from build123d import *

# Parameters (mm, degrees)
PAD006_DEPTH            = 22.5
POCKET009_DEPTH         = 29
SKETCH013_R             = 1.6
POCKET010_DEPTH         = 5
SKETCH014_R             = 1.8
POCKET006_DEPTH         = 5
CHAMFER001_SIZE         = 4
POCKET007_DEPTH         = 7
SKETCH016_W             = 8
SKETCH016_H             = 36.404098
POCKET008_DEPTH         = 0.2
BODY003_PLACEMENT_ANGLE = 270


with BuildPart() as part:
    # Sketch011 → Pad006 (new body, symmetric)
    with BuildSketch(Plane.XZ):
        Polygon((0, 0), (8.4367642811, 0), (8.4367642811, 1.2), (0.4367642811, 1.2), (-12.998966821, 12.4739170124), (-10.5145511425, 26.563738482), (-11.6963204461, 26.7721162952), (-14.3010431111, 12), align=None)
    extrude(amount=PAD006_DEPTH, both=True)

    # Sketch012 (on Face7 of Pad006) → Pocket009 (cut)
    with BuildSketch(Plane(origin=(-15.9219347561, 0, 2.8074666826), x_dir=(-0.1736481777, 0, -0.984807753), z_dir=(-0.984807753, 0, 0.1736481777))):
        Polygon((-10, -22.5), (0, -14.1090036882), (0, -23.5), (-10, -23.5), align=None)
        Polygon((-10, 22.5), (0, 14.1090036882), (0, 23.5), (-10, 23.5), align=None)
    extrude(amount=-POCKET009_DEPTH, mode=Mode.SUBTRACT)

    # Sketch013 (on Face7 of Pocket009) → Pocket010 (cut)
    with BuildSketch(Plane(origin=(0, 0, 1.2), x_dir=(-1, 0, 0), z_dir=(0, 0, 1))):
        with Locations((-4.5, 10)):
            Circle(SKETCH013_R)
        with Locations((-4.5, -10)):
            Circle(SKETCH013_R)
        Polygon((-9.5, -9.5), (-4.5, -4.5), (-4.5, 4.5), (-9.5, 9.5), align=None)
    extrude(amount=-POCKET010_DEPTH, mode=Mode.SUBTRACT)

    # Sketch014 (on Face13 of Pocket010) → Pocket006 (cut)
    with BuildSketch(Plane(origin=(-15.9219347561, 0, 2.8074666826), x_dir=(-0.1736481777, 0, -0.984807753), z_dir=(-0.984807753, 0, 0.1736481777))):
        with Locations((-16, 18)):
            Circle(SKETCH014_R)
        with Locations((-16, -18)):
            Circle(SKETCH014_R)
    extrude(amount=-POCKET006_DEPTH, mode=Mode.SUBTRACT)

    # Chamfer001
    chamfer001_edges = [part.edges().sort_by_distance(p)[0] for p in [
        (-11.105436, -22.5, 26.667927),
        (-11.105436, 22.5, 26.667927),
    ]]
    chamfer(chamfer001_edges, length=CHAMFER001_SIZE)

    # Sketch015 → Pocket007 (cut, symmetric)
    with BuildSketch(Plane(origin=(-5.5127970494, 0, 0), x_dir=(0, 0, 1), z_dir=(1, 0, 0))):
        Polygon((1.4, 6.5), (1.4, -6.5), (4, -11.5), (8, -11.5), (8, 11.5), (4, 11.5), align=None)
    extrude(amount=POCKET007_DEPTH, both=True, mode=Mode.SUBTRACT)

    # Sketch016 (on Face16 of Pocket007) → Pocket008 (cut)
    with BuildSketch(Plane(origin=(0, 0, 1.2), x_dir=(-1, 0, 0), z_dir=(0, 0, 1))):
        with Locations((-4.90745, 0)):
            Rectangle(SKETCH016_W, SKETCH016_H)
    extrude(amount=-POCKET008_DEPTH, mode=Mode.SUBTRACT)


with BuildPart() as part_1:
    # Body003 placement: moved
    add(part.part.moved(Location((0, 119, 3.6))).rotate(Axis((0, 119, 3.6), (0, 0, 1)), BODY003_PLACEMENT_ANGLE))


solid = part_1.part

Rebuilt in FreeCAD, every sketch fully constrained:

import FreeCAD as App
import Part
import Sketcher
Q = App.Units.Quantity


def edges_at(feature, points):
    """Names of the edges that pass closest to the given points."""
    edges = feature.Shape.Edges
    near = lambda p: min(range(len(edges)), key=lambda i: edges[i].distToShape(Part.Vertex(*p))[0])
    return sorted({f"Edge{near(p) + 1}" for p in points})

doc = App.newDocument("Part")
body = doc.addObject("PartDesign::Body", "Body")

# Sketch on XZ plane
sketch1 = body.newObject("Sketcher::SketchObject", "Sketch")
sketch1.AttachmentSupport = (doc.getObject("XZ_Plane"), [""])
sketch1.MapMode = "FlatFace"
sketch1.addGeometry(Part.LineSegment(App.Vector(0, 0, 0), App.Vector(8.4, 0, 0)), False)
sketch1.addGeometry(Part.LineSegment(App.Vector(8.4, 0, 0), App.Vector(8.4, 1.2, 0)), False)
sketch1.addGeometry(Part.LineSegment(App.Vector(8.4, 1.2, 0), App.Vector(0.4, 1.2, 0)), False)
sketch1.addGeometry(Part.LineSegment(App.Vector(0.4, 1.2, 0), App.Vector(-13, 12.5, 0)), False)
sketch1.addGeometry(Part.LineSegment(App.Vector(-13, 12.5, 0), App.Vector(-10.5, 26.6, 0)), False)
sketch1.addGeometry(Part.LineSegment(App.Vector(-10.5, 26.6, 0), App.Vector(-11.7, 26.8, 0)), False)
sketch1.addGeometry(Part.LineSegment(App.Vector(-11.7, 26.8, 0), App.Vector(-14.3, 12, 0)), False)
sketch1.addGeometry(Part.LineSegment(App.Vector(-14.3, 12, 0), App.Vector(0, 0, 0)), False)
sketch1.addConstraint(Sketcher.Constraint("Coincident", 0, 2, 1, 1))
sketch1.addConstraint(Sketcher.Constraint("Coincident", 1, 2, 2, 1))
sketch1.addConstraint(Sketcher.Constraint("Coincident", 2, 2, 3, 1))
sketch1.addConstraint(Sketcher.Constraint("Coincident", 3, 2, 4, 1))
sketch1.addConstraint(Sketcher.Constraint("Coincident", 4, 2, 5, 1))
sketch1.addConstraint(Sketcher.Constraint("Coincident", 5, 2, 6, 1))
sketch1.addConstraint(Sketcher.Constraint("Coincident", 6, 2, 7, 1))
sketch1.addConstraint(Sketcher.Constraint("Coincident", 7, 2, 0, 1))
sketch1.addConstraint(Sketcher.Constraint("Horizontal", 0))
sketch1.addConstraint(Sketcher.Constraint("Vertical", 1))
sketch1.addConstraint(Sketcher.Constraint("Horizontal", 2))
sketch1.addConstraint(Sketcher.Constraint("Coincident", 7, 2, -1, 1))
sketch1.addConstraint(Sketcher.Constraint("Perpendicular", 4, 5))
sketch1.addConstraint(Sketcher.Constraint("Perpendicular", 5, 6))
sketch1.addConstraint(Sketcher.Constraint("Parallel", 3, 7))
sketch1.addConstraint(Sketcher.Constraint("DistanceX", 2, 2, 2, 1, Q("8 mm")))
sketch1.addConstraint(Sketcher.Constraint("Angle", 3, Q("140 deg")))
sketch1.addConstraint(Sketcher.Constraint("Angle", 4, Q("80 deg")))
sketch1.addConstraint(Sketcher.Constraint("Distance", 6, Q("15 mm")))
sketch1.addConstraint(Sketcher.Constraint("DistanceY", 1, 1, 1, 2, Q("1.2 mm")))
sketch1.addConstraint(Sketcher.Constraint("DistanceY", -1, 1, 6, 2, Q("12 mm")))
sketch1.addConstraint(Sketcher.Constraint("Distance", 5, Q("1.2 mm")))
sketch1.addConstraint(Sketcher.Constraint("Distance", 3, Q("17.539101 mm")))
pad1 = body.newObject("PartDesign::Pad", "Pad")
pad1.Profile = sketch1
pad1.Length = 45
pad1.Midplane = True

# Sketch on an angled plane
sketch2 = body.newObject("Sketcher::SketchObject", "Sketch001")
sketch2.Placement = App.Placement(App.Vector(-15.921935, 0, 2.807467), App.Rotation(App.Vector(-0.173648178, 0, -0.984807753), App.Vector(0, -1, 0), App.Vector(-0.984807753, 0, 0.173648178), "ZXY"))
sketch2.addGeometry(Part.LineSegment(App.Vector(0, -14.1, 0), App.Vector(-10, -22.5, 0)), False)
sketch2.addGeometry(Part.LineSegment(App.Vector(-10, -22.5, 0), App.Vector(-10, -23.5, 0)), False)
sketch2.addGeometry(Part.LineSegment(App.Vector(-10, -23.5, 0), App.Vector(0, -23.5, 0)), False)
sketch2.addGeometry(Part.LineSegment(App.Vector(0, -23.5, 0), App.Vector(0, -14.1, 0)), False)
sketch2.addGeometry(Part.LineSegment(App.Vector(-10, 22.5, 0), App.Vector(0, 14.1, 0)), False)
sketch2.addGeometry(Part.LineSegment(App.Vector(0, 14.1, 0), App.Vector(0, 23.5, 0)), False)
sketch2.addGeometry(Part.LineSegment(App.Vector(0, 23.5, 0), App.Vector(-10, 23.5, 0)), False)
sketch2.addGeometry(Part.LineSegment(App.Vector(-10, 23.5, 0), App.Vector(-10, 22.5, 0)), False)
sketch2.addConstraint(Sketcher.Constraint("Coincident", 0, 2, 1, 1))
sketch2.addConstraint(Sketcher.Constraint("Coincident", 1, 2, 2, 1))
sketch2.addConstraint(Sketcher.Constraint("Coincident", 2, 2, 3, 1))
sketch2.addConstraint(Sketcher.Constraint("Coincident", 3, 2, 0, 1))
sketch2.addConstraint(Sketcher.Constraint("Coincident", 4, 2, 5, 1))
sketch2.addConstraint(Sketcher.Constraint("Coincident", 5, 2, 6, 1))
sketch2.addConstraint(Sketcher.Constraint("Coincident", 6, 2, 7, 1))
sketch2.addConstraint(Sketcher.Constraint("Coincident", 7, 2, 4, 1))
sketch2.addConstraint(Sketcher.Constraint("Vertical", 1))
sketch2.addConstraint(Sketcher.Constraint("Horizontal", 2))
sketch2.addConstraint(Sketcher.Constraint("Vertical", 3))
sketch2.addConstraint(Sketcher.Constraint("Vertical", 5))
sketch2.addConstraint(Sketcher.Constraint("Horizontal", 6))
sketch2.addConstraint(Sketcher.Constraint("Vertical", 7))
sketch2.addConstraint(Sketcher.Constraint("Symmetric", 3, 2, 4, 2, -1, 1))
sketch2.addConstraint(Sketcher.Constraint("Symmetric", 2, 2, 5, 2, -1))
sketch2.addConstraint(Sketcher.Constraint("Symmetric", 0, 2, 7, 2, -1))
sketch2.addConstraint(Sketcher.Constraint("DistanceX", 2, 1, 2, 2, Q("10 mm")))
sketch2.addConstraint(Sketcher.Constraint("DistanceY", 1, 2, 1, 1, Q("1 mm")))
sketch2.addConstraint(Sketcher.Constraint("Angle", 0, Q("-140 deg")))
sketch2.addConstraint(Sketcher.Constraint("DistanceY", 2, 2, 5, 2, Q("47 mm")))
pocket1 = body.newObject("PartDesign::Pocket", "Pocket")
pocket1.Profile = sketch2
pocket1.Length = 29

# Sketch on XY plane
sketch3 = body.newObject("Sketcher::SketchObject", "Sketch002")
sketch3.AttachmentSupport = (doc.getObject("XY_Plane"), [""])
sketch3.MapMode = "FlatFace"
sketch3.AttachmentOffset = App.Placement(App.Vector(0, 0, 1.2), App.Rotation())
sketch3.addGeometry(Part.Circle(App.Vector(4.5, -10, 0), App.Vector(0, 0, 1), 1.6), False)
sketch3.addGeometry(Part.Circle(App.Vector(4.5, 10, 0), App.Vector(0, 0, 1), 1.6), False)
sketch3.addGeometry(Part.LineSegment(App.Vector(9.5, 9.5, 0), App.Vector(4.5, 4.5, 0)), False)
sketch3.addGeometry(Part.LineSegment(App.Vector(4.5, 4.5, 0), App.Vector(4.5, -4.5, 0)), False)
sketch3.addGeometry(Part.LineSegment(App.Vector(4.5, -4.5, 0), App.Vector(9.5, -9.5, 0)), False)
sketch3.addGeometry(Part.LineSegment(App.Vector(9.5, -9.5, 0), App.Vector(9.5, 9.5, 0)), False)
sketch3.addConstraint(Sketcher.Constraint("Coincident", 2, 2, 3, 1))
sketch3.addConstraint(Sketcher.Constraint("Coincident", 3, 2, 4, 1))
sketch3.addConstraint(Sketcher.Constraint("Coincident", 4, 2, 5, 1))
sketch3.addConstraint(Sketcher.Constraint("Coincident", 5, 2, 2, 1))
sketch3.addConstraint(Sketcher.Constraint("Vertical", 3))
sketch3.addConstraint(Sketcher.Constraint("Vertical", 5))
sketch3.addConstraint(Sketcher.Constraint("Equal", 0, 1))
sketch3.addConstraint(Sketcher.Constraint("Symmetric", 0, 3, 1, 3, -1))
sketch3.addConstraint(Sketcher.Constraint("Perpendicular", 2, 4))
sketch3.addConstraint(Sketcher.Constraint("Vertical", 1, 3, 2, 2))
sketch3.addConstraint(Sketcher.Constraint("Equal", 2, 4))
sketch3.addConstraint(Sketcher.Constraint("Diameter", 0, Q("3.2 mm")))
sketch3.addConstraint(Sketcher.Constraint("DistanceY", 3, 2, 3, 1, Q("9 mm")))
sketch3.addConstraint(Sketcher.Constraint("DistanceY", 5, 1, 5, 2, Q("19 mm")))
sketch3.addConstraint(Sketcher.Constraint("DistanceY", 0, 3, -1, 1, Q("10 mm")))
sketch3.addConstraint(Sketcher.Constraint("DistanceX", -1, 1, 0, 3, Q("4.5 mm")))
sketch3.addConstraint(Sketcher.Constraint("DistanceY", -1, 1, 2, 2, Q("4.5 mm")))
pocket2 = body.newObject("PartDesign::Pocket", "Pocket001")
pocket2.Profile = sketch3
pocket2.Length = 5

# Sketch on an angled plane
sketch4 = body.newObject("Sketcher::SketchObject", "Sketch003")
sketch4.Placement = App.Placement(App.Vector(-15.921935, 0, 2.807467), App.Rotation(App.Vector(-0.173648178, 0, -0.984807753), App.Vector(0, -1, 0), App.Vector(-0.984807753, 0, 0.173648178), "ZXY"))
sketch4.addGeometry(Part.Circle(App.Vector(-16, 18, 0), App.Vector(0, 0, 1), 1.8), False)
sketch4.addGeometry(Part.Circle(App.Vector(-16, -18, 0), App.Vector(0, 0, 1), 1.8), False)
sketch4.addConstraint(Sketcher.Constraint("Equal", 0, 1))
sketch4.addConstraint(Sketcher.Constraint("Symmetric", 0, 3, 1, 3, -1))
sketch4.addConstraint(Sketcher.Constraint("Diameter", 0, Q("3.6 mm")))
sketch4.addConstraint(Sketcher.Constraint("DistanceX", 0, 3, -1, 1, Q("16 mm")))
sketch4.addConstraint(Sketcher.Constraint("DistanceY", -1, 1, 0, 3, Q("18 mm")))
pocket3 = body.newObject("PartDesign::Pocket", "Pocket002")
pocket3.Profile = sketch4
pocket3.Length = 5
doc.recompute()

chamfer = body.newObject("PartDesign::Chamfer", "Chamfer")
chamfer.Base = (pocket3, edges_at(pocket3, [(-11.105, -22.5, 26.668), (-11.105, 22.5, 26.668)]))
chamfer.Size = 4

# Sketch on YZ plane
sketch5 = body.newObject("Sketcher::SketchObject", "Sketch004")
sketch5.AttachmentSupport = (doc.getObject("YZ_Plane"), [""])
sketch5.MapMode = "FlatFace"
sketch5.AttachmentOffset = App.Placement(App.Vector(0, 0, -5.512797), App.Rotation())
sketch5.addGeometry(Part.LineSegment(App.Vector(-6.5, 1.4, 0), App.Vector(6.5, 1.4, 0)), False)
sketch5.addGeometry(Part.LineSegment(App.Vector(6.5, 1.4, 0), App.Vector(11.5, 4, 0)), False)
sketch5.addGeometry(Part.LineSegment(App.Vector(11.5, 4, 0), App.Vector(11.5, 8, 0)), False)
sketch5.addGeometry(Part.LineSegment(App.Vector(11.5, 8, 0), App.Vector(-11.5, 8, 0)), False)
sketch5.addGeometry(Part.LineSegment(App.Vector(-11.5, 8, 0), App.Vector(-11.5, 4, 0)), False)
sketch5.addGeometry(Part.LineSegment(App.Vector(-11.5, 4, 0), App.Vector(-6.5, 1.4, 0)), False)
sketch5.addConstraint(Sketcher.Constraint("Coincident", 0, 2, 1, 1))
sketch5.addConstraint(Sketcher.Constraint("Coincident", 1, 2, 2, 1))
sketch5.addConstraint(Sketcher.Constraint("Coincident", 2, 2, 3, 1))
sketch5.addConstraint(Sketcher.Constraint("Coincident", 3, 2, 4, 1))
sketch5.addConstraint(Sketcher.Constraint("Coincident", 4, 2, 5, 1))
sketch5.addConstraint(Sketcher.Constraint("Coincident", 5, 2, 0, 1))
sketch5.addConstraint(Sketcher.Constraint("Horizontal", 0))
sketch5.addConstraint(Sketcher.Constraint("Vertical", 2))
sketch5.addConstraint(Sketcher.Constraint("Horizontal", 3))
sketch5.addConstraint(Sketcher.Constraint("Vertical", 4))
sketch5.addConstraint(Sketcher.Constraint("Symmetric", 1, 2, 4, 2, -2))
sketch5.addConstraint(Sketcher.Constraint("Equal", 1, 5))
sketch5.addConstraint(Sketcher.Constraint("DistanceX", 0, 1, 0, 2, Q("13 mm")))
sketch5.addConstraint(Sketcher.Constraint("DistanceX", 3, 2, 3, 1, Q("23 mm")))
sketch5.addConstraint(Sketcher.Constraint("DistanceY", 2, 1, 2, 2, Q("4 mm")))
sketch5.addConstraint(Sketcher.Constraint("DistanceY", -1, 1, 1, 2, Q("4 mm")))
sketch5.addConstraint(Sketcher.Constraint("DistanceY", -1, 1, 0, 2, Q("1.4 mm")))
pocket4 = body.newObject("PartDesign::Pocket", "Pocket003")
pocket4.Profile = sketch5
pocket4.Length = 14
pocket4.Midplane = True

# Sketch on XY plane
sketch6 = body.newObject("Sketcher::SketchObject", "Sketch005")
sketch6.AttachmentSupport = (doc.getObject("XY_Plane"), [""])
sketch6.MapMode = "FlatFace"
sketch6.AttachmentOffset = App.Placement(App.Vector(0, 0, 1.2), App.Rotation())
sketch6.addGeometry(Part.LineSegment(App.Vector(9, -18, 0), App.Vector(9, 18, 0)), False)
sketch6.addGeometry(Part.LineSegment(App.Vector(9, 18, 0), App.Vector(1, 18, 0)), False)
sketch6.addGeometry(Part.LineSegment(App.Vector(1, 18, 0), App.Vector(1, -18, 0)), False)
sketch6.addGeometry(Part.LineSegment(App.Vector(1, -18, 0), App.Vector(9, -18, 0)), False)
sketch6.addConstraint(Sketcher.Constraint("Coincident", 0, 2, 1, 1))
sketch6.addConstraint(Sketcher.Constraint("Coincident", 1, 2, 2, 1))
sketch6.addConstraint(Sketcher.Constraint("Coincident", 2, 2, 3, 1))
sketch6.addConstraint(Sketcher.Constraint("Coincident", 3, 2, 0, 1))
sketch6.addConstraint(Sketcher.Constraint("Vertical", 0))
sketch6.addConstraint(Sketcher.Constraint("Horizontal", 1))
sketch6.addConstraint(Sketcher.Constraint("Vertical", 2))
sketch6.addConstraint(Sketcher.Constraint("Horizontal", 3))
sketch6.addConstraint(Sketcher.Constraint("DistanceX", 1, 2, 1, 1, Q("8 mm")))
sketch6.addConstraint(Sketcher.Constraint("DistanceY", 0, 1, 0, 2, Q("36.404098 mm")))
sketch6.addConstraint(Sketcher.Constraint("DistanceX", -1, 1, 0, 2, Q("8.90745 mm")))
sketch6.addConstraint(Sketcher.Constraint("DistanceY", -1, 1, 0, 2, Q("18.202049 mm")))
pocket5 = body.newObject("PartDesign::Pocket", "Pocket004")
pocket5.Profile = sketch6
pocket5.Length = 0.2
body2 = doc.addObject("PartDesign::Body", "Body001")
doc.recompute()

body.Placement = App.Placement(App.Vector(0, 119, 3.6), App.Rotation(App.Vector(0, 0, 1), 270))
boolean = body2.newObject("PartDesign::Boolean", "Boolean")
boolean.Type = "Fuse"
boolean.addObjects([body])

doc.recompute()
